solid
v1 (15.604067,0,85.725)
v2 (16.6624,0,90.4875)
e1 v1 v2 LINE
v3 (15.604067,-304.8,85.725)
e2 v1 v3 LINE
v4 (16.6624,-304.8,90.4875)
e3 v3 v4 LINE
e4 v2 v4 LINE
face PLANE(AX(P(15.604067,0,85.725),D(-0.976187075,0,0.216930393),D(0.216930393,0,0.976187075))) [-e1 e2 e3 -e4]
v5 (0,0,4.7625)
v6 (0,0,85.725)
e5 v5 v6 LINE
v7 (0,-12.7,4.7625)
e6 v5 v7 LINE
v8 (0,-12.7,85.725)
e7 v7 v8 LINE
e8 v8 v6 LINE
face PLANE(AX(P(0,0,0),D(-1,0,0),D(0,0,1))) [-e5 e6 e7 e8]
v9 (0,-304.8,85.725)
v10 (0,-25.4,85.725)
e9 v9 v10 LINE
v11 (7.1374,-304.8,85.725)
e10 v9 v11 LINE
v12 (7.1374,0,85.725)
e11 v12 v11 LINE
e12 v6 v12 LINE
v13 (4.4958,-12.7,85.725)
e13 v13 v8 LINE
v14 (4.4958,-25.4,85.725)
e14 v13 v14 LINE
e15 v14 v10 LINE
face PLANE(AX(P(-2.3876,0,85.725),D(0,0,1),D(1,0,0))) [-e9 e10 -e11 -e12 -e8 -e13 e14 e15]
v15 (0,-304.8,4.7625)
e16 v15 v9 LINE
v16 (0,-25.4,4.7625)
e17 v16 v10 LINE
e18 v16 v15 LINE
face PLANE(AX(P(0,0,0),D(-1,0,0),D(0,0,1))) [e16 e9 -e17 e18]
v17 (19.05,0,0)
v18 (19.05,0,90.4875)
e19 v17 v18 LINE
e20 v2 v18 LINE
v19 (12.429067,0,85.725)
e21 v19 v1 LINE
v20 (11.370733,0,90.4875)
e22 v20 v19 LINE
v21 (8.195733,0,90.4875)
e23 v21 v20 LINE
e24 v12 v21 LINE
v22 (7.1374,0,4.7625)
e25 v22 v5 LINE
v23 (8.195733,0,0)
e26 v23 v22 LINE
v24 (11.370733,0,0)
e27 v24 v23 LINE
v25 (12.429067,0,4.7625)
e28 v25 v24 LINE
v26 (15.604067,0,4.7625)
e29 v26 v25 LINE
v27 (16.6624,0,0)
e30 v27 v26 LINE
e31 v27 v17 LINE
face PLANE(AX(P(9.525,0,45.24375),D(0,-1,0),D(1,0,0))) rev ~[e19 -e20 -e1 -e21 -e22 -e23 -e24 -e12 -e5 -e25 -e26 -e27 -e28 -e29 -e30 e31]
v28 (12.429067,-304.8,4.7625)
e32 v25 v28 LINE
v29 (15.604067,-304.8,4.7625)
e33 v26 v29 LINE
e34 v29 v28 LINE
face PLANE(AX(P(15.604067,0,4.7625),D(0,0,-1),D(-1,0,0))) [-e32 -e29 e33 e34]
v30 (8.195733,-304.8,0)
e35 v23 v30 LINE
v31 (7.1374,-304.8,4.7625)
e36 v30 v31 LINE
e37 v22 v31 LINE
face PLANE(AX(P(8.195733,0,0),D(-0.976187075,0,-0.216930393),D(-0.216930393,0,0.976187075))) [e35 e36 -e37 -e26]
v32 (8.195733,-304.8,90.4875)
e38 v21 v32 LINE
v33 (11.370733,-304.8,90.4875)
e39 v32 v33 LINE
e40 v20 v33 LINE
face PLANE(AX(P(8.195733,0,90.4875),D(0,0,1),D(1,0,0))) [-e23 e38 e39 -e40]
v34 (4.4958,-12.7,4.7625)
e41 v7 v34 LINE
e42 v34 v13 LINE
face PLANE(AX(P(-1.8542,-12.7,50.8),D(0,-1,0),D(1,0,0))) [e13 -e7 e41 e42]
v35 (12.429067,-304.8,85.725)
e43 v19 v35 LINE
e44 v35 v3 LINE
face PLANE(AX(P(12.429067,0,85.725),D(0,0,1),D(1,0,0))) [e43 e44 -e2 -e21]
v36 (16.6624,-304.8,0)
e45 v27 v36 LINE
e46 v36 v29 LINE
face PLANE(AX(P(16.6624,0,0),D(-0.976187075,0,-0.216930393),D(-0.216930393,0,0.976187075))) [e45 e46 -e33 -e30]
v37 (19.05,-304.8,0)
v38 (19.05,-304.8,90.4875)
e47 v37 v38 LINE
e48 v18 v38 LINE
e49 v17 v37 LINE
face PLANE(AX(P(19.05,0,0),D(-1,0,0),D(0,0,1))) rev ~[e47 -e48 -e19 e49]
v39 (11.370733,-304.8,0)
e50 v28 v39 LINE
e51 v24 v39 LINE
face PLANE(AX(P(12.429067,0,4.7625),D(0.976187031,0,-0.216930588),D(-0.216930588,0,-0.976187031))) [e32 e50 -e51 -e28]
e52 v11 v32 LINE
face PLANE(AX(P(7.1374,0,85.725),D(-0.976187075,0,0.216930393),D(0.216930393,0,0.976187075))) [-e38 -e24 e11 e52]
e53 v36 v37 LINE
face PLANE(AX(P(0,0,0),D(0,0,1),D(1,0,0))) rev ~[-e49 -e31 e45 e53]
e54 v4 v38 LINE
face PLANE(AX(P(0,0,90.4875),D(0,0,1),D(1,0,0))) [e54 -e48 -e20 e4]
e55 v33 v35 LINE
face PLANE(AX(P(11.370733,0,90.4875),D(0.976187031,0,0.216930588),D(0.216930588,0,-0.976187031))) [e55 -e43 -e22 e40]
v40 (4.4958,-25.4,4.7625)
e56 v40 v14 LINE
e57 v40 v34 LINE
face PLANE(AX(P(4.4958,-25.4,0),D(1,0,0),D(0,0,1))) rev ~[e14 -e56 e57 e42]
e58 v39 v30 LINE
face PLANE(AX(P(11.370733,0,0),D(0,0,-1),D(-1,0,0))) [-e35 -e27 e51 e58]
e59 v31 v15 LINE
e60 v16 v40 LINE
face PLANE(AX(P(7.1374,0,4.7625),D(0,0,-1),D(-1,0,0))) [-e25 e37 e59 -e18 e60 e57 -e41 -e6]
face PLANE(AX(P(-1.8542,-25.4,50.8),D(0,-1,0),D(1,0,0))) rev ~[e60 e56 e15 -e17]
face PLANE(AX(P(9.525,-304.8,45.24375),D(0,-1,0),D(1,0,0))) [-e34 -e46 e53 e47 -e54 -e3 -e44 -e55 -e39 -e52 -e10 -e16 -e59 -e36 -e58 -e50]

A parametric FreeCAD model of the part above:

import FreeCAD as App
import Part
import Sketcher

V = App.Vector
Q = App.Units.Quantity


def add_polygon(sketch, points):
    """Adds a closed chain of lines whose ends are joined by coincident constraints."""
    first, n = sketch.GeometryCount, len(points)
    for a, b in zip(points, points[1:] + points[:1]):
        sketch.addGeometry(Part.LineSegment(App.Vector(*a, 0), App.Vector(*b, 0)), False)
    for i in range(n):
        sketch.addConstraint(Sketcher.Constraint("Coincident", first + i, 2, first + (i + 1) % n, 1))

doc = App.newDocument("Part")
body = doc.addObject("PartDesign::Body", "Body")

# Sketch on XZ plane
sketch1 = doc.addObject("Sketcher::SketchObject", "Sketch")
body.addObject(sketch1)
sketch1.AttachmentSupport = (doc.XZ_Plane, [""])
sketch1.MapMode = "FlatFace"
add_polygon(sketch1, [(0, 90.4875), (0, 0), (19.05, 0), (19.05, 90.4875)])  # lines 0-3
sketch1.addConstraint([
    Sketcher.Constraint("Vertical", 0),
    Sketcher.Constraint("Horizontal", 1),
    Sketcher.Constraint("Vertical", 2),
    Sketcher.Constraint("Horizontal", 3),
    Sketcher.Constraint("Coincident", 0, 2, -1, 1),
    Sketcher.Constraint("DistanceX", 1, 1, 1, 2, Q("0.75 in")),
    Sketcher.Constraint("DistanceY", 0, 2, 0, 1, Q("3.5625 in")),
])
pad1 = doc.addObject("PartDesign::Pad", "Pad")
body.addObject(pad1)
pad1.Profile = sketch1
pad1.Length = Q("12 in")

# Sketch on XZ plane
sketch2 = doc.addObject("Sketcher::SketchObject", "Sketch001")
body.addObject(sketch2)
sketch2.AttachmentSupport = (doc.XZ_Plane, [""])
sketch2.MapMode = "FlatFace"
sketch2.AttachmentOffset = App.Placement(V(0, 0, 1 * 25.4), App.Rotation())
add_polygon(sketch2, [(-8.2042, 101.6), (-8.2042, 0), (4.4958, 0), (4.4958, 101.6)])  # lines 0-3
sketch2.addConstraint([
    Sketcher.Constraint("Vertical", 0),
    Sketcher.Constraint("Horizontal", 1),
    Sketcher.Constraint("Vertical", 2),
    Sketcher.Constraint("Horizontal", 3),
    Sketcher.Constraint("PointOnObject", 0, 2, -1),
    Sketcher.Constraint("DistanceY", 0, 2, 0, 1, Q("4 in")),
    Sketcher.Constraint("DistanceX", 1, 1, 1, 2, Q("0.5 in")),
    Sketcher.Constraint("DistanceX", 0, 2, -1, 1, Q("0.323 in")),
])
pocket1 = doc.addObject("PartDesign::Pocket", "Pocket")
body.addObject(pocket1)
pocket1.Profile = sketch2
pocket1.Length = Q("0.5 in")

# Sketch on XZ plane
sketch3 = doc.addObject("Sketcher::SketchObject", "Sketch002")
body.addObject(sketch3)
sketch3.AttachmentSupport = (doc.XZ_Plane, [""])
sketch3.MapMode = "FlatFace"
add_polygon(sketch3, [(-2.3876, -5.089026), (26.1874, -5.089026), (26.1874, 0), (16.6624, 0), (15.604067, 4.7625), (12.429067, 4.7625), (11.370733, 0), (8.195733, 0), (7.1374, 4.7625), (-2.3876, 4.7625)])  # lines 0-9
sketch3.addConstraint([
    Sketcher.Constraint("Horizontal", 0),
    Sketcher.Constraint("Vertical", 1),
    Sketcher.Constraint("Horizontal", 2),
    Sketcher.Constraint("Horizontal", 4),
    Sketcher.Constraint("Horizontal", 6),
    Sketcher.Constraint("Horizontal", 8),
    Sketcher.Constraint("Vertical", 9),
    Sketcher.Constraint("PointOnObject", 1, 2, -1),
    Sketcher.Constraint("PointOnObject", 5, 2, -1),
    Sketcher.Constraint("Parallel", 3, 7),
    Sketcher.Constraint("Horizontal", 4, 2, 7, 2),
    Sketcher.Constraint("Equal", 4, 6),
    Sketcher.Constraint("Equal", 2, 8),
    Sketcher.Constraint("Equal", 3, 5),
    Sketcher.Constraint("DistanceX", 0, 1, 0, 2, Q("1.125 in")),
    Sketcher.Constraint("DistanceX", 2, 2, 2, 1, Q("0.375 in")),
    Sketcher.Constraint("DistanceX", 4, 2, 4, 1, Q("0.125 in")),
    Sketcher.Constraint("DistanceX", -1, 1, 0, 2, Q("1.031 in")),
    Sketcher.Constraint("DistanceY", -1, 1, 3, 2, Q("0.1875 in")),
    Sketcher.Constraint("DistanceY", 1, 1, 1, 2, 5.089026),
])
pocket2 = doc.addObject("PartDesign::Pocket", "Pocket001")
body.addObject(pocket2)
pocket2.Profile = sketch3
pocket2.Length = Q("12 in")
pocket2.Reversed = True

# Sketch on XZ plane
sketch4 = doc.addObject("Sketcher::SketchObject", "Sketch003")
body.addObject(sketch4)
sketch4.AttachmentSupport = (doc.XZ_Plane, [""])
sketch4.MapMode = "FlatFace"
add_polygon(sketch4, [(26.1874, 90.4875), (26.1874, 95.576526), (-2.3876, 95.576526), (-2.3876, 85.725), (7.1374, 85.725), (8.195733, 90.4875), (11.370733, 90.4875), (12.429067, 85.725), (15.604067, 85.725), (16.6624, 90.4875)])  # lines 0-9
sketch4.addConstraint([
    Sketcher.Constraint("Vertical", 0),
    Sketcher.Constraint("Horizontal", 1),
    Sketcher.Constraint("Vertical", 2),
    Sketcher.Constraint("Horizontal", 3),
    Sketcher.Constraint("Horizontal", 5),
    Sketcher.Constraint("Horizontal", 7),
    Sketcher.Constraint("Horizontal", 9),
    Sketcher.Constraint("Parallel", 4, 8),
    Sketcher.Constraint("Horizontal", 3, 2, 6, 2),
    Sketcher.Constraint("Horizontal", 5, 2, 8, 2),
    Sketcher.Constraint("Equal", 5, 7),
    Sketcher.Constraint("Equal", 3, 9),
    Sketcher.Constraint("Equal", 4, 6),
    Sketcher.Constraint("DistanceX", 1, 2, 1, 1, Q("1.125 in")),
    Sketcher.Constraint("DistanceX", 3, 1, 3, 2, Q("0.375 in")),
    Sketcher.Constraint("DistanceX", 5, 1, 5, 2, Q("0.125 in")),
    Sketcher.Constraint("DistanceX", -1, 1, 0, 2, Q("1.031 in")),
    Sketcher.Constraint("DistanceY", -1, 1, 2, 2, Q("3.375 in")),
    Sketcher.Constraint("DistanceY", -1, 1, 4, 2, Q("3.5625 in")),
    Sketcher.Constraint("DistanceY", 0, 1, 0, 2, 5.089026),
])
pocket3 = doc.addObject("PartDesign::Pocket", "Pocket002")
body.addObject(pocket3)
pocket3.Profile = sketch4
pocket3.Length = Q("12 in")
pocket3.Reversed = True

doc.recompute()
